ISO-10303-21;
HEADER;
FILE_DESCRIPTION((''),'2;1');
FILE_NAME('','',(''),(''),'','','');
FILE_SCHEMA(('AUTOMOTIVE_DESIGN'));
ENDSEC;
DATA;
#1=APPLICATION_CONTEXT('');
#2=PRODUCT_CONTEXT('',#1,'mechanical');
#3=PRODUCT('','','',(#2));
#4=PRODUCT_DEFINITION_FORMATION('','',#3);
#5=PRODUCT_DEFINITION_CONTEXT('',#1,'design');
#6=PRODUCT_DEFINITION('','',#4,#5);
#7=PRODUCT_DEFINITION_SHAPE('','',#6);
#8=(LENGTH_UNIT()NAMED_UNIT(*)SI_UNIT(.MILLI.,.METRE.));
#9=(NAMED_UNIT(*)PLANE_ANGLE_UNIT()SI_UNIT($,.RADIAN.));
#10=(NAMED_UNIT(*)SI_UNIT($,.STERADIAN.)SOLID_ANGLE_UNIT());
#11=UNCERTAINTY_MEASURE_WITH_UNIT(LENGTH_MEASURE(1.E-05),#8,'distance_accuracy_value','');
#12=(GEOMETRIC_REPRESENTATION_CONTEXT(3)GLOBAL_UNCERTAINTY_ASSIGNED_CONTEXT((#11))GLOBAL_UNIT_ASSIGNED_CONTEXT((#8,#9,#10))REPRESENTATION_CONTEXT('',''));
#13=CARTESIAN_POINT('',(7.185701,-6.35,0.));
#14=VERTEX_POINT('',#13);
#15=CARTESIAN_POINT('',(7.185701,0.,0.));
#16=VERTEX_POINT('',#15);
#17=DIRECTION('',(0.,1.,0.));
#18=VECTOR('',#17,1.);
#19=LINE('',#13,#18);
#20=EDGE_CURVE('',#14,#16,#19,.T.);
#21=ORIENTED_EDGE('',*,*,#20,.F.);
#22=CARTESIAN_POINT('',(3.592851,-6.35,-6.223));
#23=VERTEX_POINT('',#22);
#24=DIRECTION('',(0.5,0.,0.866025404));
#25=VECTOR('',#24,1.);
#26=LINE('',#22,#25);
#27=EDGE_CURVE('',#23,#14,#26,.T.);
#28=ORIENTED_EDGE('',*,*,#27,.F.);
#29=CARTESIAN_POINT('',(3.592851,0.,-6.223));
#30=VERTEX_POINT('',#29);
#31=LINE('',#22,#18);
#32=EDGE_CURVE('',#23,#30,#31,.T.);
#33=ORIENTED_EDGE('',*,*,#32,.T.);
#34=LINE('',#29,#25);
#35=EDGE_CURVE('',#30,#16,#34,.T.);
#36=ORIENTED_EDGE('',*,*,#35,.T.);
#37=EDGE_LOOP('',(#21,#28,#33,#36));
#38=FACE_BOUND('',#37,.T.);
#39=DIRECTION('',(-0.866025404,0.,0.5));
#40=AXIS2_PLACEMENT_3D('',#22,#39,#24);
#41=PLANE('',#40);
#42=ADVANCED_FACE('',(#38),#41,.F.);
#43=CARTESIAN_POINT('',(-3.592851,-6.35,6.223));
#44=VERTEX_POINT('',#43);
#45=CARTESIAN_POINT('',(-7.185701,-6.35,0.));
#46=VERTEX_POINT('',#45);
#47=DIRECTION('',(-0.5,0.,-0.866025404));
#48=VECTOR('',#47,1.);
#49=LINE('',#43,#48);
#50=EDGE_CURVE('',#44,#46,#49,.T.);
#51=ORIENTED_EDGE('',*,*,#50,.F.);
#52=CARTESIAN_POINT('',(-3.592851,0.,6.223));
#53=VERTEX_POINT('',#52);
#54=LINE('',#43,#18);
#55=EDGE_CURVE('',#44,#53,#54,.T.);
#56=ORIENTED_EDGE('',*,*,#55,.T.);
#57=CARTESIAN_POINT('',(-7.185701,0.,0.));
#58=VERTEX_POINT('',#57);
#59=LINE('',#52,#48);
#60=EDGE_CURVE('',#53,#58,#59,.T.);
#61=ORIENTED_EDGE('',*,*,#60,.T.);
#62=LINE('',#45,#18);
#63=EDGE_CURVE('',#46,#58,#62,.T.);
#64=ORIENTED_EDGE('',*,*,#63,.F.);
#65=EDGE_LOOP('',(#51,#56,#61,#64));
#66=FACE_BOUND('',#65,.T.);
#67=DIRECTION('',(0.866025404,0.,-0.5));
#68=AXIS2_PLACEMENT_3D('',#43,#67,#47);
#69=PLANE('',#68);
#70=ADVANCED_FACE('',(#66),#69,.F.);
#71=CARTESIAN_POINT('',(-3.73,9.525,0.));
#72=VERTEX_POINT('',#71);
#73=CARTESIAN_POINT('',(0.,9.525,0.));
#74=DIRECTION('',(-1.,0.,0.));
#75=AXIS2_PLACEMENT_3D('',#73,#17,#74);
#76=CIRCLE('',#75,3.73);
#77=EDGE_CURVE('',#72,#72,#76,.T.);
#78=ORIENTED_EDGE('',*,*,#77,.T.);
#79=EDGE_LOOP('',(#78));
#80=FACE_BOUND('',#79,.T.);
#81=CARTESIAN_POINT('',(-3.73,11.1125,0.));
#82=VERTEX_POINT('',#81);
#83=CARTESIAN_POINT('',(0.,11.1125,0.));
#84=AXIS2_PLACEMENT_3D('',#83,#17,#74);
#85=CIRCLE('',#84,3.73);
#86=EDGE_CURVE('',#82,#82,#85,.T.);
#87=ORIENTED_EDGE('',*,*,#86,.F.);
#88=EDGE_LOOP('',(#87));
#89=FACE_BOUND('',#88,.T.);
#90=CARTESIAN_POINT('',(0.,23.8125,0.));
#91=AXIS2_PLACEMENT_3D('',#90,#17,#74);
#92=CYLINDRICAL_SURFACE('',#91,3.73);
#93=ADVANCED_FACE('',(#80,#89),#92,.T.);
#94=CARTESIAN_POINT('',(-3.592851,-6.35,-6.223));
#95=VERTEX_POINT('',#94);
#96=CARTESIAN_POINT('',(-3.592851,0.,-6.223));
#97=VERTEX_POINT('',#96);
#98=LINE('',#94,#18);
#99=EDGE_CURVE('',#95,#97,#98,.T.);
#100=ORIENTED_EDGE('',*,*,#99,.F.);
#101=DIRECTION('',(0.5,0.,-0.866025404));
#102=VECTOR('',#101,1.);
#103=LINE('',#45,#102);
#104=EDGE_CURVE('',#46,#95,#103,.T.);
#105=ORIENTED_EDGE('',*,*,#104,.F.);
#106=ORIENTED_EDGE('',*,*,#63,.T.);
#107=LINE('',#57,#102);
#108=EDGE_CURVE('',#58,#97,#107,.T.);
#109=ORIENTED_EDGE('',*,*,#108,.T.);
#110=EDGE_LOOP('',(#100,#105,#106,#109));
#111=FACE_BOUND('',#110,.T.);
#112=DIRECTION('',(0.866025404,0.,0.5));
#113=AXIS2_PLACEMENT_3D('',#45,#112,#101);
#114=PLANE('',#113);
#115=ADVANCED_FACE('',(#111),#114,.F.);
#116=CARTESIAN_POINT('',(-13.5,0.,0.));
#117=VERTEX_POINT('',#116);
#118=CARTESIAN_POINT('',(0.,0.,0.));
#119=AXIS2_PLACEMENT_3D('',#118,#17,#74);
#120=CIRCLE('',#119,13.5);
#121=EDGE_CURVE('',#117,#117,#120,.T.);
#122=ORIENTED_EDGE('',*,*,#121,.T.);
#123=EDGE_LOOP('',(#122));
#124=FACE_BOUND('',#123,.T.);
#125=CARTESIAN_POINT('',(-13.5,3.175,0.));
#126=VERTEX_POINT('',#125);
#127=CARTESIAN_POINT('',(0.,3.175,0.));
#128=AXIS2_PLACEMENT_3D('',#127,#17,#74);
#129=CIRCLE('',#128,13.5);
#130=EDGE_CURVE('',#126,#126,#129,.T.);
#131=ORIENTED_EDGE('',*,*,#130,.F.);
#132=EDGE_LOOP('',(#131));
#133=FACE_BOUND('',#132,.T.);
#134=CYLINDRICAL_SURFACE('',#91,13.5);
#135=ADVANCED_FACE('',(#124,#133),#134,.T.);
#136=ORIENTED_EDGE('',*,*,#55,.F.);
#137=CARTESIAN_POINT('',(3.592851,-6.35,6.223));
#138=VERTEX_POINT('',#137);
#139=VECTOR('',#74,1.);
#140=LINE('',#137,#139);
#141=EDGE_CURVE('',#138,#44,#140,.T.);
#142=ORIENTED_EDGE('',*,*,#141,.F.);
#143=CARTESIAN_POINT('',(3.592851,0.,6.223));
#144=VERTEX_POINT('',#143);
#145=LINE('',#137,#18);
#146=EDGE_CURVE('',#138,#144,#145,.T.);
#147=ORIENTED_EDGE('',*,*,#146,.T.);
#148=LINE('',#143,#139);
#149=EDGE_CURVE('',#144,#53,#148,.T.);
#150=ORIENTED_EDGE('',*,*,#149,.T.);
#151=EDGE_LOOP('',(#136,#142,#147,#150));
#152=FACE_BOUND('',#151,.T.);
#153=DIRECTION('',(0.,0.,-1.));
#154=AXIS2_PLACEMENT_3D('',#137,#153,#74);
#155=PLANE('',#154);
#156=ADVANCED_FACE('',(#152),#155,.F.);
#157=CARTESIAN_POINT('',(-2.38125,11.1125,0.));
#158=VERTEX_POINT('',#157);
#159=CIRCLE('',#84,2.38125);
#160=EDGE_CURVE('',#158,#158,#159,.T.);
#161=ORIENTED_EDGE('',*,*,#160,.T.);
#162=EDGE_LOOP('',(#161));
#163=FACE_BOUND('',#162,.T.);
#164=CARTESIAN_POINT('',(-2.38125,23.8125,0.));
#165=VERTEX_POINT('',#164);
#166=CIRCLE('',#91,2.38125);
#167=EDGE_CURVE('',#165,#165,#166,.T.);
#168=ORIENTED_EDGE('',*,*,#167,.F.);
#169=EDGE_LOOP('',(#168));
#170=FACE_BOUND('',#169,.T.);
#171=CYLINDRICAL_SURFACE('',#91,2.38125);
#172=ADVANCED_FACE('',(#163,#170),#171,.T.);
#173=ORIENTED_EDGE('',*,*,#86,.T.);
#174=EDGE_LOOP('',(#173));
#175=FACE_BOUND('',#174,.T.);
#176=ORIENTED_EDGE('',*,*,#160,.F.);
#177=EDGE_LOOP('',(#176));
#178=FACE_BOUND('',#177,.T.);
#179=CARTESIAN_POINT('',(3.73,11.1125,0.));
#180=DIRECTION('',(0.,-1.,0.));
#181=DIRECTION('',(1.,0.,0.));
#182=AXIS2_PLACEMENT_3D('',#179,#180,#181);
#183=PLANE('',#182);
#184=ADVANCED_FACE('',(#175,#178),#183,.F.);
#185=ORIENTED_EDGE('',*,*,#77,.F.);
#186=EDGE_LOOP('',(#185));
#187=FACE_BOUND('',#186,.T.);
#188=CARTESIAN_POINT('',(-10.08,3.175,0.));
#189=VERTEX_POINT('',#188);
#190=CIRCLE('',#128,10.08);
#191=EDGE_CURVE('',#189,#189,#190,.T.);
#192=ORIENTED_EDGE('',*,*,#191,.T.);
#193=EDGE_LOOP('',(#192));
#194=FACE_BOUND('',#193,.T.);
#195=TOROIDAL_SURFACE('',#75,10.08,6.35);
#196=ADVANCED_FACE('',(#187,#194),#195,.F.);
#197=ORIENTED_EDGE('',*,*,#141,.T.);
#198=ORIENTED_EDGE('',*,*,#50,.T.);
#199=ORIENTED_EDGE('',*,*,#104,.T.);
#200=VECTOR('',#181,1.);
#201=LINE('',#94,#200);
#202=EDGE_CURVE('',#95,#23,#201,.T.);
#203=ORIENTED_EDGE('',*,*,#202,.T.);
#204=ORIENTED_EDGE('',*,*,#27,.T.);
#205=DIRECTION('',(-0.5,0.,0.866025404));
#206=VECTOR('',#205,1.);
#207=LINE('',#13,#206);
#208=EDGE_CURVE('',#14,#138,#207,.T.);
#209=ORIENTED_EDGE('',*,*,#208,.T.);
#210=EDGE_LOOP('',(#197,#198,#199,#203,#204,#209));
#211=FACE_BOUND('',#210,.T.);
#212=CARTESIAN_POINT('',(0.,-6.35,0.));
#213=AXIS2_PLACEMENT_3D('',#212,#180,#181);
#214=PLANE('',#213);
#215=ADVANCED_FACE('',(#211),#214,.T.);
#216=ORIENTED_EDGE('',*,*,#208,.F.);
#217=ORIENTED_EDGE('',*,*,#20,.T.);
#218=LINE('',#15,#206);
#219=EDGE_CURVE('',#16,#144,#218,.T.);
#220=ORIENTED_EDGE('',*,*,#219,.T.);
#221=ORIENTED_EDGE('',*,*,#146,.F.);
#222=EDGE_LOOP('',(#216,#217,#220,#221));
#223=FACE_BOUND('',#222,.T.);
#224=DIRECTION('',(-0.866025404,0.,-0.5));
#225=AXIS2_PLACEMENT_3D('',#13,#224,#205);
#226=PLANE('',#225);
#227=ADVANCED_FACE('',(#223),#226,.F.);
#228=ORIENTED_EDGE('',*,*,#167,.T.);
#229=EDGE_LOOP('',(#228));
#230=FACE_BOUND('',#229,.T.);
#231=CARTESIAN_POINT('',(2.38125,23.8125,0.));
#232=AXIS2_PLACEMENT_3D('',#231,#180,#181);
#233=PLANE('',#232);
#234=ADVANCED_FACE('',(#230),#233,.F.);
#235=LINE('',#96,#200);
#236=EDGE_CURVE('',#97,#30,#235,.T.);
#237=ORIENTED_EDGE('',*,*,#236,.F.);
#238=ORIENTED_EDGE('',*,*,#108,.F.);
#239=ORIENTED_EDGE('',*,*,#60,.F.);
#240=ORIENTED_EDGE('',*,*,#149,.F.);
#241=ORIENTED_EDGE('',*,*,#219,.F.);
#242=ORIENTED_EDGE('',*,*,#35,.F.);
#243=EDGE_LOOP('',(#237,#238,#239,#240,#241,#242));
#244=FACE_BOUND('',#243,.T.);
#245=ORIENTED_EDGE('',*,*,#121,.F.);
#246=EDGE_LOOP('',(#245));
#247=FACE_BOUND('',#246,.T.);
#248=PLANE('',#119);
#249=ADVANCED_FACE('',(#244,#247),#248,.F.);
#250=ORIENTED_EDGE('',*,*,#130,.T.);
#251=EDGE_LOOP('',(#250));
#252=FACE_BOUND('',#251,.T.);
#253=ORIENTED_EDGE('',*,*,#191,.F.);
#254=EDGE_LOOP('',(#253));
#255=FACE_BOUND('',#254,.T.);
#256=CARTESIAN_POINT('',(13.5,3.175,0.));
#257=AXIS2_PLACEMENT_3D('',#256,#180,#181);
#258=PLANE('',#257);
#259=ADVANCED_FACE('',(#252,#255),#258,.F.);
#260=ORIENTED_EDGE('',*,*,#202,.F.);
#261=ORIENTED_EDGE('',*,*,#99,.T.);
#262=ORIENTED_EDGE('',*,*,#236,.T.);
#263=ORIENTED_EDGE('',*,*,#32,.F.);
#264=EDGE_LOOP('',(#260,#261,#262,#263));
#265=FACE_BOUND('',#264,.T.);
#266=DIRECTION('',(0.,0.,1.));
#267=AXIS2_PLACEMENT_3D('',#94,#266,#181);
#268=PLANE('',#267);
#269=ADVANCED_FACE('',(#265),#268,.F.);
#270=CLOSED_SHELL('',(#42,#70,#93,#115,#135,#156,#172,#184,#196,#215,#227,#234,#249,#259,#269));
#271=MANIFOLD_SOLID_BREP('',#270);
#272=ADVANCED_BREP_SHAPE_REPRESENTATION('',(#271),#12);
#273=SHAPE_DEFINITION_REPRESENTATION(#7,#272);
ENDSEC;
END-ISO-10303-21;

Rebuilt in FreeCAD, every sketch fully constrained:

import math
import FreeCAD as App
import Part
import Sketcher
Q = App.Units.Quantity


def add_polygon(sketch, points):
    """Adds a closed chain of lines whose ends are joined by coincident constraints."""
    first, n = sketch.GeometryCount, len(points)
    for a, b in zip(points, points[1:] + points[:1]):
        sketch.addGeometry(Part.LineSegment(App.Vector(*a, 0), App.Vector(*b, 0)), False)
    for i in range(n):
        sketch.addConstraint(Sketcher.Constraint("Coincident", first + i, 2, first + (i + 1) % n, 1))

doc = App.newDocument("Part")
body = doc.addObject("PartDesign::Body", "Body")

# Sketch on XY plane
sketch1 = body.newObject("Sketcher::SketchObject", "Sketch")
sketch1.AttachmentSupport = (doc.getObject("XY_Plane"), [""])
sketch1.MapMode = "FlatFace"
sketch1.addGeometry([
    Part.LineSegment(App.Vector(0, 0, 0), App.Vector(13.5, 0, 0)),  # 0
    Part.LineSegment(App.Vector(13.5, 0, 0), App.Vector(13.5, 3.175, 0)),  # 1
    Part.LineSegment(App.Vector(13.5, 3.175, 0), App.Vector(10.08, 3.175, 0)),  # 2
    Part.ArcOfCircle(Part.Circle(App.Vector(10.08, 9.525, 0), App.Vector(0, 0, 1), 6.35), math.radians(180), math.radians(270)),  # 3
    Part.LineSegment(App.Vector(3.73, 9.525, 0), App.Vector(3.73, 11.1125, 0)),  # 4
    Part.LineSegment(App.Vector(3.73, 11.1125, 0), App.Vector(2.38125, 11.1125, 0)),  # 5
    Part.LineSegment(App.Vector(2.38125, 11.1125, 0), App.Vector(2.38125, 23.8125, 0)),  # 6
    Part.LineSegment(App.Vector(2.38125, 23.8125, 0), App.Vector(0, 23.8125, 0)),  # 7
    Part.LineSegment(App.Vector(0, 23.8125, 0), App.Vector(0, 0, 0)),  # 8
], False)
sketch1.addConstraint([
    Sketcher.Constraint("Coincident", 0, 2, 1, 1),
    Sketcher.Constraint("Coincident", 1, 2, 2, 1),
    Sketcher.Constraint("Tangent", 2, 2, 3, 2),
    Sketcher.Constraint("Tangent", 3, 1, 4, 1),
    Sketcher.Constraint("Coincident", 4, 2, 5, 1),
    Sketcher.Constraint("Coincident", 5, 2, 6, 1),
    Sketcher.Constraint("Coincident", 6, 2, 7, 1),
    Sketcher.Constraint("Coincident", 7, 2, 8, 1),
    Sketcher.Constraint("Coincident", 8, 2, 0, 1),
    Sketcher.Constraint("Horizontal", 0),
    Sketcher.Constraint("Vertical", 1),
    Sketcher.Constraint("Horizontal", 2),
    Sketcher.Constraint("Vertical", 4),
    Sketcher.Constraint("Horizontal", 5),
    Sketcher.Constraint("Vertical", 6),
    Sketcher.Constraint("Horizontal", 7),
    Sketcher.Constraint("Vertical", 8),
    Sketcher.Constraint("Coincident", 8, 2, -1, 1),
    Sketcher.Constraint("Radius", 3, Q("0.25 in")),
    Sketcher.Constraint("DistanceY", 6, 1, 6, 2, Q("0.5 in")),
    Sketcher.Constraint("DistanceX", 7, 2, 7, 1, Q("0.09375 in")),
    Sketcher.Constraint("DistanceY", 1, 1, 1, 2, Q("0.125 in")),
    Sketcher.Constraint("DistanceY", 4, 1, 4, 2, Q("0.0625 in")),
    Sketcher.Constraint("DistanceX", 0, 1, 0, 2, Q("13.5 mm")),
    Sketcher.Constraint("DistanceX", 2, 2, 2, 1, Q("3.42 mm")),
])
revolution = body.newObject("PartDesign::Revolution", "Revolution")
revolution.Profile = sketch1
revolution.ReferenceAxis = (sketch1, ["V_Axis"])
revolution.Angle = 360

# Sketch on XZ plane
sketch2 = body.newObject("Sketcher::SketchObject", "Sketch001")
sketch2.AttachmentSupport = (doc.getObject("XZ_Plane"), [""])
sketch2.MapMode = "FlatFace"
add_polygon(sketch2, [(7.185701, 0), (3.592851, 6.223), (-3.592851, 6.223), (-7.185701, 0), (-3.592851, -6.223), (3.592851, -6.223)])  # lines 0-5
sketch2.addConstraint([
    Sketcher.Constraint("Horizontal", 1),
    Sketcher.Constraint("Horizontal", 4),
    Sketcher.Constraint("Symmetric", 0, 2, 3, 2, -1, 1),
    Sketcher.Constraint("Symmetric", 2, 2, 5, 2, -1, 1),
    Sketcher.Constraint("PointOnObject", 2, 2, -1),
    Sketcher.Constraint("Parallel", 2, 5),
    Sketcher.Constraint("Vertical", 1, 2, 3, 2),
    Sketcher.Constraint("Angle", 0, Q("120 deg")),
    Sketcher.Constraint("DistanceY", 3, 2, 1, 2, Q("0.49 in")),
    Sketcher.Constraint("DistanceX", 1, 2, 1, 1, Q("7.185701 mm")),
])
pad1 = body.newObject("PartDesign::Pad", "Pad")
pad1.Profile = sketch2
pad1.Length = Q("0.25 in")

doc.recompute()
